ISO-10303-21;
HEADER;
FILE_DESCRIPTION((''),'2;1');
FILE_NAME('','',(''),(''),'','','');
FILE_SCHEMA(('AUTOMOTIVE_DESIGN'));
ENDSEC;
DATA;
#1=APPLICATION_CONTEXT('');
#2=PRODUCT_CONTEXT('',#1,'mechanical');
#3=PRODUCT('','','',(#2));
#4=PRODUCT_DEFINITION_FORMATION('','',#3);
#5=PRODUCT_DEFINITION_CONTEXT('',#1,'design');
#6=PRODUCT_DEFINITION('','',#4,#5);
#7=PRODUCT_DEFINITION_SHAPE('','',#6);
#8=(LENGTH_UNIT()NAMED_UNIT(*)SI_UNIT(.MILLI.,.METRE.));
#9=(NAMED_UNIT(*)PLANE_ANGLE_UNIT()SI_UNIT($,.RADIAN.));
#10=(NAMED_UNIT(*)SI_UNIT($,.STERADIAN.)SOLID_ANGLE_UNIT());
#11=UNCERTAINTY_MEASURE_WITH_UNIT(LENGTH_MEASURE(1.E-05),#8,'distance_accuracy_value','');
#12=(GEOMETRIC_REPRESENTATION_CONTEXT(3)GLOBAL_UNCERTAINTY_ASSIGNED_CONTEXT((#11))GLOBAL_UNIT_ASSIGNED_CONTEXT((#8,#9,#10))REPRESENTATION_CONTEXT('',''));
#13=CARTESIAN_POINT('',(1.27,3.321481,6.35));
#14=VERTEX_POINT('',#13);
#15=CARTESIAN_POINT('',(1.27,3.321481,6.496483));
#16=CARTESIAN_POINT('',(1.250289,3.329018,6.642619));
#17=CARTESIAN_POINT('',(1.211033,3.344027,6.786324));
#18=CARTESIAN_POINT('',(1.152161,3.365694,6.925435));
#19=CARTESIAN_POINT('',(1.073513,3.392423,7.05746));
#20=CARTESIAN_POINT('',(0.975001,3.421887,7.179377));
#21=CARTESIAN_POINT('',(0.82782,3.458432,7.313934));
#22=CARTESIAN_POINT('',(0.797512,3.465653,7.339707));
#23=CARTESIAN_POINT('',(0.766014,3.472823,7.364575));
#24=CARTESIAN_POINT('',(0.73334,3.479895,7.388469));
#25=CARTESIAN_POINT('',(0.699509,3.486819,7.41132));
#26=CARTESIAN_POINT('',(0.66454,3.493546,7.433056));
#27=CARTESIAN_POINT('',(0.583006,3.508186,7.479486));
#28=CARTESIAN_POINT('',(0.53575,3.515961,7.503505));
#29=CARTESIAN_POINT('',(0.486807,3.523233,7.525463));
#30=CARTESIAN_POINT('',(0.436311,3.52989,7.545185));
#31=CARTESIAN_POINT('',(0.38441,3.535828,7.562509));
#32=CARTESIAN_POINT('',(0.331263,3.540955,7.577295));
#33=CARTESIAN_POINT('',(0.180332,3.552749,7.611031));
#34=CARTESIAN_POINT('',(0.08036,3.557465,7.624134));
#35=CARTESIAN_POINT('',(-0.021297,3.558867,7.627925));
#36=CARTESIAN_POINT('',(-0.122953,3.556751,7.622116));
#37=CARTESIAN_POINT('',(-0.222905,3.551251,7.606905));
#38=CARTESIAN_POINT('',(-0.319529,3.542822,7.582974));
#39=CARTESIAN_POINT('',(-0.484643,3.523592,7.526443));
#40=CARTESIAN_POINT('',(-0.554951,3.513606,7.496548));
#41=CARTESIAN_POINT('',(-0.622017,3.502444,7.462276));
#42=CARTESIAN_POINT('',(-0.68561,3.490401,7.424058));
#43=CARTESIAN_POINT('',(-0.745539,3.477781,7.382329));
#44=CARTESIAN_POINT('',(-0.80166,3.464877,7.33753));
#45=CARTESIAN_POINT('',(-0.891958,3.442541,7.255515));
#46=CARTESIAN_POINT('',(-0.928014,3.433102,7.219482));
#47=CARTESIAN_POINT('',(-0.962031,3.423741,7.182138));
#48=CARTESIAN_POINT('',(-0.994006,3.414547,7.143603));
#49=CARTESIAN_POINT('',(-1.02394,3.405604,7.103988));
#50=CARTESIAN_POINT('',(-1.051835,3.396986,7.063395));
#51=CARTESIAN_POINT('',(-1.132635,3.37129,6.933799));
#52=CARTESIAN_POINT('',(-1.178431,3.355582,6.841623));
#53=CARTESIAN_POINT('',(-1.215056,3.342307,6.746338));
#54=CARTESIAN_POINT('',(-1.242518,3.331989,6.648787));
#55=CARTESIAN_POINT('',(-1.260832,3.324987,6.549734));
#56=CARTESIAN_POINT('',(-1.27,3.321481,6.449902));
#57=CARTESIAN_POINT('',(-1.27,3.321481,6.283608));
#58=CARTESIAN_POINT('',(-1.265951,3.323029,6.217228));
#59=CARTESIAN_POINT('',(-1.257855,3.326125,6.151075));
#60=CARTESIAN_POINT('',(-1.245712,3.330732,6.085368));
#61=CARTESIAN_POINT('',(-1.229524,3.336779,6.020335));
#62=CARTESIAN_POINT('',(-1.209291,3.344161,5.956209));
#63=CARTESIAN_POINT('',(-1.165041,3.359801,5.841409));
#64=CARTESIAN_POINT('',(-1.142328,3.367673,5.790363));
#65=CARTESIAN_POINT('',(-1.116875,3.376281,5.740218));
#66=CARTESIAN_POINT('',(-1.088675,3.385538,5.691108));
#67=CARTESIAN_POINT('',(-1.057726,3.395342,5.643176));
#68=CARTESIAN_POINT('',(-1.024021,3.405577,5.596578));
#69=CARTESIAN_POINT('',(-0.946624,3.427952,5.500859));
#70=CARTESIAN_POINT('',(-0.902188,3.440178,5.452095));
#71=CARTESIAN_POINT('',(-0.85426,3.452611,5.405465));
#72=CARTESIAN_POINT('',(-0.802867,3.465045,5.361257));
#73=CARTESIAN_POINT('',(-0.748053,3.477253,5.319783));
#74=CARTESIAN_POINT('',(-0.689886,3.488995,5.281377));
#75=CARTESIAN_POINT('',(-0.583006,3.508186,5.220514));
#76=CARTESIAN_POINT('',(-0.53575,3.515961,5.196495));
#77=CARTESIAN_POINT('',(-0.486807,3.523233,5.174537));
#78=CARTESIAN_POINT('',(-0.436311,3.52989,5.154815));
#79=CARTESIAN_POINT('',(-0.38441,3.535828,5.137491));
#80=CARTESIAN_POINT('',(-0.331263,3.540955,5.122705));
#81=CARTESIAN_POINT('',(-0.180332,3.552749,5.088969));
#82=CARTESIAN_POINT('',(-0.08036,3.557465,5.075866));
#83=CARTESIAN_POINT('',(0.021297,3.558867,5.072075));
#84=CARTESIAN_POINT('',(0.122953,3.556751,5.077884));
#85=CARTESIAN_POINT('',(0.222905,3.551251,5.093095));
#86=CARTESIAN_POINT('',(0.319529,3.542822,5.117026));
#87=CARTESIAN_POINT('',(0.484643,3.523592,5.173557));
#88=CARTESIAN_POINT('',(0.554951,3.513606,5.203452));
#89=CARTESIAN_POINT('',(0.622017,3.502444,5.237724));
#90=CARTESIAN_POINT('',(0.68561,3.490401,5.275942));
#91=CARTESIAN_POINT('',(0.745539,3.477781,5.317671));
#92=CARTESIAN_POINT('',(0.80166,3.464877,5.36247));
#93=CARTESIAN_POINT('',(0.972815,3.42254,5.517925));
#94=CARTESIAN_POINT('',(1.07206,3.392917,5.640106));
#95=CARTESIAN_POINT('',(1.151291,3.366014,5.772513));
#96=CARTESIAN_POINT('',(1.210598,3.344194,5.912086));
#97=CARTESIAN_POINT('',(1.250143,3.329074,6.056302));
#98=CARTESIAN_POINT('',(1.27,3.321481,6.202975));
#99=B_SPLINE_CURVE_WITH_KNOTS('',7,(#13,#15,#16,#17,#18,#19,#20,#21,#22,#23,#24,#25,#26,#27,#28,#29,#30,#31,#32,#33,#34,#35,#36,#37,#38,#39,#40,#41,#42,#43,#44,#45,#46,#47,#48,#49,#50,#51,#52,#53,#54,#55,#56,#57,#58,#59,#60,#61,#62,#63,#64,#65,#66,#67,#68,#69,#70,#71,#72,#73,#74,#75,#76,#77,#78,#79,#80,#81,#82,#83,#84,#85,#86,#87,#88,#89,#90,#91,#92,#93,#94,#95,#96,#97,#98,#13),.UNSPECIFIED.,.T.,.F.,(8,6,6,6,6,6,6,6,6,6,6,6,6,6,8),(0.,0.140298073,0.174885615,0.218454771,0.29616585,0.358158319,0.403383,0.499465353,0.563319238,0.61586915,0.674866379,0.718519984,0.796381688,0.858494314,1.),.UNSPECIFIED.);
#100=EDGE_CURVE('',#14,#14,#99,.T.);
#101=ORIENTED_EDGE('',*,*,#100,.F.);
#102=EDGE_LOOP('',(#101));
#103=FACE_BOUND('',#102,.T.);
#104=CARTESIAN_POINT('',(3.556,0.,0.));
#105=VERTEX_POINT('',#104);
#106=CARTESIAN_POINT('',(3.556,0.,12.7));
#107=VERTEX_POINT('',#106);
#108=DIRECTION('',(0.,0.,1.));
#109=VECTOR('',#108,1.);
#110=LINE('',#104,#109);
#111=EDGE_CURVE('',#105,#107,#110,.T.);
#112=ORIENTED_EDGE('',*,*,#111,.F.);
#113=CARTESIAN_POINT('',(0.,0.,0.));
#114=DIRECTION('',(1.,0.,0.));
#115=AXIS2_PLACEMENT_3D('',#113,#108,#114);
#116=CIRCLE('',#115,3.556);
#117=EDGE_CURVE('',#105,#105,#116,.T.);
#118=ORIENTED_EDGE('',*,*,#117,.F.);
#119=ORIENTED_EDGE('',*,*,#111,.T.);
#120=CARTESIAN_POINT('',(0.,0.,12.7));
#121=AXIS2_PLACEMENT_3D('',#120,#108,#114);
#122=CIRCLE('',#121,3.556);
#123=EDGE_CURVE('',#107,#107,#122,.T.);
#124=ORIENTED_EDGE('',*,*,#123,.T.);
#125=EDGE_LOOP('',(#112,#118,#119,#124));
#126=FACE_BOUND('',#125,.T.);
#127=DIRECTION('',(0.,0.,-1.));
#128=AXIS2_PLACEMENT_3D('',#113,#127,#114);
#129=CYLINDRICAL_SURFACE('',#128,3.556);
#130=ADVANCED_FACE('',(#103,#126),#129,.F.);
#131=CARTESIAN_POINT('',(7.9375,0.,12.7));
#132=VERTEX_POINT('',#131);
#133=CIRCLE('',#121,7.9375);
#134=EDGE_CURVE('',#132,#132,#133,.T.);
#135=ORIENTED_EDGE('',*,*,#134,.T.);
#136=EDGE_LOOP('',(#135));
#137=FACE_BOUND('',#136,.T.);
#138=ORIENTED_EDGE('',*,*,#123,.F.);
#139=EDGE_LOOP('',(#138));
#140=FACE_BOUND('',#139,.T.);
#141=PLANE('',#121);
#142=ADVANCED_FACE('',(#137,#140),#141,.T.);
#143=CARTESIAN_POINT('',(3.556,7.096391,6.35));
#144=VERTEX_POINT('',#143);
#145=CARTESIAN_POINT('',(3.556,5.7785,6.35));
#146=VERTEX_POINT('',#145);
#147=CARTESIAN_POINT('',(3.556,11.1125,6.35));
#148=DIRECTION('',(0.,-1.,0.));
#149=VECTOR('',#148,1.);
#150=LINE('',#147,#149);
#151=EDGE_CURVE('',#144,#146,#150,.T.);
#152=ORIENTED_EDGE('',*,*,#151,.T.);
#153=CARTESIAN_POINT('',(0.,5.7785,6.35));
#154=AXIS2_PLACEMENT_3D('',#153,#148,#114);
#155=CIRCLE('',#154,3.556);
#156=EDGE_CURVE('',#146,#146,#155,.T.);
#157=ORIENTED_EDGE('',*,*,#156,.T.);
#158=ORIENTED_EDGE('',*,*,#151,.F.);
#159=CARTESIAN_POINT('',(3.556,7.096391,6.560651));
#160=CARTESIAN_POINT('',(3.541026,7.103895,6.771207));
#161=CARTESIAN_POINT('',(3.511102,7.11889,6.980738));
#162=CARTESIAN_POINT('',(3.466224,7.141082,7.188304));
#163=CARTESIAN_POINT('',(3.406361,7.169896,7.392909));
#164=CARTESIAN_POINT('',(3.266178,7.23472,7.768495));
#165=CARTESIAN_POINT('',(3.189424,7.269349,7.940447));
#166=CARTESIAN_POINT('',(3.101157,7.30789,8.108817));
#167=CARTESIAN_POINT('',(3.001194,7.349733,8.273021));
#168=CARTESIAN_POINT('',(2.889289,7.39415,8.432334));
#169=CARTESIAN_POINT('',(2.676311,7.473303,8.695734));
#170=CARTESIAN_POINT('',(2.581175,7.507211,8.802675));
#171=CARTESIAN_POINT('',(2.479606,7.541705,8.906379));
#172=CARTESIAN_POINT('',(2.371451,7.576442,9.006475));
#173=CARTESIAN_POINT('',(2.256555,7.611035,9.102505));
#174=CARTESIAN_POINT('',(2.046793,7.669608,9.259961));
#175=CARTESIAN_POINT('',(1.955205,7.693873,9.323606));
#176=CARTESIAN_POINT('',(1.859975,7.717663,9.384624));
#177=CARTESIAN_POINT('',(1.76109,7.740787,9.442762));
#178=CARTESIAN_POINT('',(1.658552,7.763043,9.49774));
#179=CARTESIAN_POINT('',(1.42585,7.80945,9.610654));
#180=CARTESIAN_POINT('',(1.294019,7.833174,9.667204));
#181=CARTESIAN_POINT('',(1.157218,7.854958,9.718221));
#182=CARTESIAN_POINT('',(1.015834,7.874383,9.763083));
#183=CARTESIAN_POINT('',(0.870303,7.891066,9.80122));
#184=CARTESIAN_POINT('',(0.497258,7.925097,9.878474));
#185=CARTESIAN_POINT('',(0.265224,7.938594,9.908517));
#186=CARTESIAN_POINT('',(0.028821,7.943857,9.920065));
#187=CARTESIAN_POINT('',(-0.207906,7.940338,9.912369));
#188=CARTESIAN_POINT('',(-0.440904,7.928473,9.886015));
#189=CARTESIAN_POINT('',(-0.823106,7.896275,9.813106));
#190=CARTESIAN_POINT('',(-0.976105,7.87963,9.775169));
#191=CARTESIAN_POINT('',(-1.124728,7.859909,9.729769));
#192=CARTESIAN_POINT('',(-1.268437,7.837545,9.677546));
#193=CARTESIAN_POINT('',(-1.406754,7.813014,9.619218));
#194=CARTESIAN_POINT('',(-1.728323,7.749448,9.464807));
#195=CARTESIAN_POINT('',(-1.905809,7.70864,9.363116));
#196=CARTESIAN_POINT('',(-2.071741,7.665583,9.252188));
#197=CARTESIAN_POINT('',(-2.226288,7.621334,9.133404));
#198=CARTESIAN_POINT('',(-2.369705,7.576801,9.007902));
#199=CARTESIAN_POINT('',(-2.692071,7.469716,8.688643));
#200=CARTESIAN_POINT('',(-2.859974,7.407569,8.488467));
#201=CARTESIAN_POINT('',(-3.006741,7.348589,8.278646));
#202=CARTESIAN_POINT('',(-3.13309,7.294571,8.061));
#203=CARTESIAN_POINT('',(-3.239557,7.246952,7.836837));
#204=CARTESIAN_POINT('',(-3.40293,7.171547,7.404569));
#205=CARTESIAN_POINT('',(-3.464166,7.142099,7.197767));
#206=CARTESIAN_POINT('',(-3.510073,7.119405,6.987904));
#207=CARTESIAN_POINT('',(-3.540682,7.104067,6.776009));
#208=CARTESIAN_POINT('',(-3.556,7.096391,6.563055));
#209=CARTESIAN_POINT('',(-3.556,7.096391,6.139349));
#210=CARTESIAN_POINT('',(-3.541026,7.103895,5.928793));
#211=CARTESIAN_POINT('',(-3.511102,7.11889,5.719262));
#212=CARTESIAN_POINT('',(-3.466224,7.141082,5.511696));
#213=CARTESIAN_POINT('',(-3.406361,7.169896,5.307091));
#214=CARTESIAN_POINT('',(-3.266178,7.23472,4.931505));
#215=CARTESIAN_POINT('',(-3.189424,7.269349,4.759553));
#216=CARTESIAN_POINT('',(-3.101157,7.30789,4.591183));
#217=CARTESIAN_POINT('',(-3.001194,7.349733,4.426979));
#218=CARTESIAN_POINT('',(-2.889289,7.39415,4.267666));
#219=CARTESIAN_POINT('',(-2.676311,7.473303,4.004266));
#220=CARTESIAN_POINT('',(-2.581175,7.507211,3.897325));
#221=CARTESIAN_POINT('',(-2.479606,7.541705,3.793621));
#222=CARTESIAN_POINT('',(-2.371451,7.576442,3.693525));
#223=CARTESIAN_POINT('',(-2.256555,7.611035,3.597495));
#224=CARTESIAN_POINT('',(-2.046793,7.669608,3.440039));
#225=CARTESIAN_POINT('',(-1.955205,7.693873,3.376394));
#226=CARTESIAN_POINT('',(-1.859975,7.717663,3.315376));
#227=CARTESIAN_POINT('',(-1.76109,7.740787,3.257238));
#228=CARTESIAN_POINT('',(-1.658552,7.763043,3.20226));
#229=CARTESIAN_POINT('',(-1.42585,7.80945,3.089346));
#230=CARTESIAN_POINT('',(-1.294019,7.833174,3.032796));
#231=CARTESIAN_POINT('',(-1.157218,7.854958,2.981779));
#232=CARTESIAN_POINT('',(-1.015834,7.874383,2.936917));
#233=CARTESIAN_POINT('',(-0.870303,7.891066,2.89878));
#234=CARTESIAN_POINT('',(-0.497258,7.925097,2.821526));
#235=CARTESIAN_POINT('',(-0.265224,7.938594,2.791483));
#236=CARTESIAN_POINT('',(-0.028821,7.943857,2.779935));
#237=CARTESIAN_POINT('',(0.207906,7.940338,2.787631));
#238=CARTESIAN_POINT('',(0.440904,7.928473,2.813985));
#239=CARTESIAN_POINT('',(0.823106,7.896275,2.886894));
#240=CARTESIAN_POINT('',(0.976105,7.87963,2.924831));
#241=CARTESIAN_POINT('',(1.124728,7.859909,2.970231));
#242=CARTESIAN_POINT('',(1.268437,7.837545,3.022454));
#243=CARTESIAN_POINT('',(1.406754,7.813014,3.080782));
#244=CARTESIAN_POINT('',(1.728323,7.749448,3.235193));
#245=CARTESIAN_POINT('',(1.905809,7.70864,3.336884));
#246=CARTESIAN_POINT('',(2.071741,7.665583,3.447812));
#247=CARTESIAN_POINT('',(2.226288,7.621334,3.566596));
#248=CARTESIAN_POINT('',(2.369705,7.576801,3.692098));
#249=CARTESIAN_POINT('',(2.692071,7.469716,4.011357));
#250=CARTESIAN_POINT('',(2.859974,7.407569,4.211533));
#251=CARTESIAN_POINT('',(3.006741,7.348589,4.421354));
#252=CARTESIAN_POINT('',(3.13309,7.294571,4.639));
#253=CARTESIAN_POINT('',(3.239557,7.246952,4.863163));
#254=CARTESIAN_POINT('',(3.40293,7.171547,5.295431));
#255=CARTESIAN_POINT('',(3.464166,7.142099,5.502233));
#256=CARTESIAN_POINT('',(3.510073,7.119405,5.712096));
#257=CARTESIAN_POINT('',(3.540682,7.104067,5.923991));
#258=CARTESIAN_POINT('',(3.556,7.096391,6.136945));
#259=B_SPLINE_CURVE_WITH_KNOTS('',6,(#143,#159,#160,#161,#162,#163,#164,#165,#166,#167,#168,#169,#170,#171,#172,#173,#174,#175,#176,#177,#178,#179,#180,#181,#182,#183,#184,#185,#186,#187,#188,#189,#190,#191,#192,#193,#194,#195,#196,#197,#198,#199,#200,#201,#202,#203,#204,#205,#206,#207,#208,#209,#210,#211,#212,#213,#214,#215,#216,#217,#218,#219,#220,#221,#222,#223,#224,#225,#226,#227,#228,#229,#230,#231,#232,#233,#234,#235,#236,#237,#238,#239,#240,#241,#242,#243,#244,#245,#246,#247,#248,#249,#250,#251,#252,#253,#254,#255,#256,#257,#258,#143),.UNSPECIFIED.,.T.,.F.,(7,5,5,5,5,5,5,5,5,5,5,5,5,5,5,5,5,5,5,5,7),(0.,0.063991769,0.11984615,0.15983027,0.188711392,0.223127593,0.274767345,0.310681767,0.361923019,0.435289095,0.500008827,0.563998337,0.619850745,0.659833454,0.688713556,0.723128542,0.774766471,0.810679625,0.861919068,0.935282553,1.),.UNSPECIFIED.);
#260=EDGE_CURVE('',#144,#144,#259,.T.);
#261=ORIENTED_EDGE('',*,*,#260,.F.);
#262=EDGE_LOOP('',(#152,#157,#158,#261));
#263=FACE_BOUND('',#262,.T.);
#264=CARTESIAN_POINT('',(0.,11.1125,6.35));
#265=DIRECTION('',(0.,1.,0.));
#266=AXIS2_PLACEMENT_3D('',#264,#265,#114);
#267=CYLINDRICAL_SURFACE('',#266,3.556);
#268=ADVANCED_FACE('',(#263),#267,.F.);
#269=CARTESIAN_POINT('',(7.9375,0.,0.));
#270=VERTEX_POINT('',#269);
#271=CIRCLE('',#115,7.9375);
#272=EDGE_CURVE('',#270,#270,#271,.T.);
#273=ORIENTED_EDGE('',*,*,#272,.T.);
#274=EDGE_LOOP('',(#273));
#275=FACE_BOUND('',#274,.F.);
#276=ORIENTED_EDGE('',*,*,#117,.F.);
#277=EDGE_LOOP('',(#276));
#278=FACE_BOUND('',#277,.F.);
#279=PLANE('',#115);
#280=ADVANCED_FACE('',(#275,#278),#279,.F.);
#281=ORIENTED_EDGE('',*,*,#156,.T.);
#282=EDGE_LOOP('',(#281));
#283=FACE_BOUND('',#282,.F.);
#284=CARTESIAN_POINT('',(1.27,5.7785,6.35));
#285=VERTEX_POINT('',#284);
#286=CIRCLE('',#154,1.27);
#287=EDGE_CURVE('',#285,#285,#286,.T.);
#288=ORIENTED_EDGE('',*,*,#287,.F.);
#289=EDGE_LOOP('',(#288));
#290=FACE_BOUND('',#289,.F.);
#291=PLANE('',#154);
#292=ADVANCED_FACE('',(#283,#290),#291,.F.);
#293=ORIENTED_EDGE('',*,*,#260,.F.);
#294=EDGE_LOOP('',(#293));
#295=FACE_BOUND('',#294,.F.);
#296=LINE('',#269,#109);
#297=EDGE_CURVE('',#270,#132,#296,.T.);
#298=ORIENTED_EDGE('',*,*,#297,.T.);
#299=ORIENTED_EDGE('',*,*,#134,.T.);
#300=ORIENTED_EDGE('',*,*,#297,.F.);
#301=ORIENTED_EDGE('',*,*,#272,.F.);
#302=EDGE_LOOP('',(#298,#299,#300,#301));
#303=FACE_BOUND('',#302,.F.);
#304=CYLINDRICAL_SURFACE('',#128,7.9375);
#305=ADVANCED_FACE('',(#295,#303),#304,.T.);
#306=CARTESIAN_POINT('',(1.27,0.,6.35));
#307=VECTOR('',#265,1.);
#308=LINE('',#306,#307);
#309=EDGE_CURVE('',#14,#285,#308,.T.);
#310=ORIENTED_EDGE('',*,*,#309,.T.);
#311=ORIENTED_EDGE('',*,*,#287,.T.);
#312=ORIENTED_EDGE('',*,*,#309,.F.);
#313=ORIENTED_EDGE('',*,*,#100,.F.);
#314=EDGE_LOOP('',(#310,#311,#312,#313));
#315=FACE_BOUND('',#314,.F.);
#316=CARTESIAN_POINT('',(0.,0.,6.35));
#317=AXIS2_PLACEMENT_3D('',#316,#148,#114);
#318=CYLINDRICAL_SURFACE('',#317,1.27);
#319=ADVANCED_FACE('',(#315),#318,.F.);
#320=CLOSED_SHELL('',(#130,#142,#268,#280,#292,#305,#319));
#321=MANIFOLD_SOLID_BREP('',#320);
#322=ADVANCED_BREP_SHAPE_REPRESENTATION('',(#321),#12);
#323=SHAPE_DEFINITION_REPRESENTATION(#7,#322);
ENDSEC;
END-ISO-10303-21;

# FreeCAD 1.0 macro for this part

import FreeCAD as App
import Part
import Sketcher
from FreeCAD import Vector
Q = App.Units.Quantity

doc = App.newDocument("Part")
body = doc.addObject("PartDesign::Body", "Body")

# Sketch on XY plane
sketch1 = body.newObject("Sketcher::SketchObject", "Sketch")
sketch1.AttachmentSupport = (doc.getObject("XY_Plane"), [""])
sketch1.MapMode = "FlatFace"
sketch1.addGeometry([
    Part.Circle(Vector(0, 0, 0), Vector(0, 0, 1), 7.9),
    Part.Circle(Vector(0, 0, 0), Vector(0, 0, 1), 3.6),
], False)
sketch1.addConstraint([
    Sketcher.Constraint("Coincident", 0, 3, -1, 1),
    Sketcher.Constraint("Coincident", 1, 3, -1, 1),
    Sketcher.Constraint("Diameter", 1, Q("0.28 in")),
    Sketcher.Constraint("Diameter", 0, Q("0.625 in")),
])
pad1 = body.newObject("PartDesign::Pad", "Pad")
pad1.Profile = sketch1
pad1.Length = Q("0.5 in")

# Sketch on XZ plane
sketch2 = body.newObject("Sketcher::SketchObject", "Sketch001")
sketch2.AttachmentSupport = (doc.getObject("XZ_Plane"), [""])
sketch2.MapMode = "FlatFace"
sketch2.addGeometry(Part.Circle(Vector(0, 6.3, 0), Vector(0, 0, 1), 1.3), False)
sketch2.addConstraint([
    Sketcher.Constraint("PointOnObject", 0, 3, -2),
    Sketcher.Constraint("Diameter", 0, Q("0.1 in")),
    Sketcher.Constraint("DistanceY", -1, 1, 0, 3, Q("0.25 in")),
])
pocket1 = body.newObject("PartDesign::Pocket", "Pocket")
pocket1.Profile = sketch2
pocket1.Type = "ThroughAll"

# Sketch on XZ plane
sketch3 = body.newObject("Sketcher::SketchObject", "Sketch002")
sketch3.AttachmentSupport = (doc.getObject("XZ_Plane"), [""])
sketch3.MapMode = "FlatFace"
sketch3.AttachmentOffset = App.Placement(Vector(0, 0, -0.4375 * 25.4), App.Rotation())
sketch3.addGeometry(Part.Circle(Vector(0, 6.3, 0), Vector(0, 0, 1), 3.6), False)
sketch3.addConstraint([
    Sketcher.Constraint("PointOnObject", 0, 3, -2),
    Sketcher.Constraint("Diameter", 0, Q("0.28 in")),
    Sketcher.Constraint("DistanceY", -1, 1, 0, 3, Q("0.25 in")),
])
pocket2 = body.newObject("PartDesign::Pocket", "Pocket001")
pocket2.Profile = sketch3
pocket2.Length = Q("0.21 in")
pocket2.Reversed = True

doc.recompute()
